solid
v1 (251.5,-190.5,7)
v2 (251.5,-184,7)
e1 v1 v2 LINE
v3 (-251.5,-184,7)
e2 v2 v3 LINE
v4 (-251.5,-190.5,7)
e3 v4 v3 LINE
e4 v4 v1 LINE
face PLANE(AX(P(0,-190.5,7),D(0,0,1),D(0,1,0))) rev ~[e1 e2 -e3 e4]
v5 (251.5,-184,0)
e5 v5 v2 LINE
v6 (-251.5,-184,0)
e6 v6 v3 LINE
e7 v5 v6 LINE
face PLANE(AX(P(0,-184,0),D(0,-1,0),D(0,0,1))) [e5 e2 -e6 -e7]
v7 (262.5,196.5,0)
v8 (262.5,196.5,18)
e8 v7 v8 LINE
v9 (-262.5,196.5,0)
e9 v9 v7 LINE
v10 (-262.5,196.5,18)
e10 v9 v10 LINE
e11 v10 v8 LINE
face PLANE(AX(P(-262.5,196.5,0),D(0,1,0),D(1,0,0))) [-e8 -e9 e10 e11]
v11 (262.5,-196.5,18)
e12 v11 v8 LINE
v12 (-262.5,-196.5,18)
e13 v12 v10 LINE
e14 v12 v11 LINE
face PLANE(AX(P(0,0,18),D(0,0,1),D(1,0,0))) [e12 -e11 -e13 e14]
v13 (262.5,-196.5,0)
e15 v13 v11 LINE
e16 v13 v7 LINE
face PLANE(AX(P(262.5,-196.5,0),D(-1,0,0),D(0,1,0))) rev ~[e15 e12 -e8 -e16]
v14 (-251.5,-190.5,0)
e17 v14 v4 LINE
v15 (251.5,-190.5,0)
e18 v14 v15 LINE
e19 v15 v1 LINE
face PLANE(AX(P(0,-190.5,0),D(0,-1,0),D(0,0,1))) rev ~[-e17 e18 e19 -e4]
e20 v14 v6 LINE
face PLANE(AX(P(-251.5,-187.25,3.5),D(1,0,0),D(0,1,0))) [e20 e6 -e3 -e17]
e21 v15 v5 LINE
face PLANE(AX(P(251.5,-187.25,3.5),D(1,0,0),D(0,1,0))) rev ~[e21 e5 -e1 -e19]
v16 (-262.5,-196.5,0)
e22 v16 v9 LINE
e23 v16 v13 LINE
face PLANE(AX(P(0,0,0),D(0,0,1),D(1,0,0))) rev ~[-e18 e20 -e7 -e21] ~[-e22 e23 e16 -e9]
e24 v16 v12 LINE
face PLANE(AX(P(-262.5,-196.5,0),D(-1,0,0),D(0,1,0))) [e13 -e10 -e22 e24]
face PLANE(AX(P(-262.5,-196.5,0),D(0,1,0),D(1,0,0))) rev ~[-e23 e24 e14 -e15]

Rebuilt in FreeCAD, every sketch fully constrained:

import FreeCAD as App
import Part
import Sketcher
Q = App.Units.Quantity

doc = App.newDocument("Part")
body = doc.addObject("PartDesign::Body", "Body")

# Sketch on XY plane
sketch1 = doc.addObject("Sketcher::SketchObject", "Sketch")
body.addObject(sketch1)
sketch1.AttachmentSupport = (doc.XY_Plane, [""])
sketch1.MapMode = "FlatFace"
sketch1.addGeometry(Part.LineSegment(App.Vector(-262.5, 196.5, 0), App.Vector(-262.5, -196.5, 0)), False)
sketch1.addGeometry(Part.LineSegment(App.Vector(-262.5, -196.5, 0), App.Vector(262.5, -196.5, 0)), False)
sketch1.addGeometry(Part.LineSegment(App.Vector(262.5, -196.5, 0), App.Vector(262.5, 196.5, 0)), False)
sketch1.addGeometry(Part.LineSegment(App.Vector(262.5, 196.5, 0), App.Vector(-262.5, 196.5, 0)), False)
sketch1.addConstraint(Sketcher.Constraint("Coincident", 0, 2, 1, 1))
sketch1.addConstraint(Sketcher.Constraint("Coincident", 1, 2, 2, 1))
sketch1.addConstraint(Sketcher.Constraint("Coincident", 2, 2, 3, 1))
sketch1.addConstraint(Sketcher.Constraint("Coincident", 3, 2, 0, 1))
sketch1.addConstraint(Sketcher.Constraint("Vertical", 0))
sketch1.addConstraint(Sketcher.Constraint("Horizontal", 1))
sketch1.addConstraint(Sketcher.Constraint("Vertical", 2))
sketch1.addConstraint(Sketcher.Constraint("Horizontal", 3))
sketch1.addConstraint(Sketcher.Constraint("Symmetric", 0, 2, 2, 2, -1, 1))
sketch1.addConstraint(Sketcher.Constraint("DistanceX", 1, 1, 1, 2, Q("525 mm")))
sketch1.addConstraint(Sketcher.Constraint("DistanceY", 0, 2, 0, 1, Q("393 mm")))
pad1 = doc.addObject("PartDesign::Pad", "Pad")
body.addObject(pad1)
pad1.Profile = sketch1
pad1.Length = 18

# Sketch on YZ plane
sketch2 = doc.addObject("Sketcher::SketchObject", "Sketch001")
body.addObject(sketch2)
sketch2.AttachmentSupport = (doc.YZ_Plane, [""])
sketch2.MapMode = "FlatFace"
sketch2.addGeometry(Part.LineSegment(App.Vector(-190.5, 7, 0), App.Vector(-190.5, 0, 0)), False)
sketch2.addGeometry(Part.LineSegment(App.Vector(-190.5, 0, 0), App.Vector(-184, 0, 0)), False)
sketch2.addGeometry(Part.LineSegment(App.Vector(-184, 0, 0), App.Vector(-184, 7, 0)), False)
sketch2.addGeometry(Part.LineSegment(App.Vector(-184, 7, 0), App.Vector(-190.5, 7, 0)), False)
sketch2.addConstraint(Sketcher.Constraint("Coincident", 0, 2, 1, 1))
sketch2.addConstraint(Sketcher.Constraint("Coincident", 1, 2, 2, 1))
sketch2.addConstraint(Sketcher.Constraint("Coincident", 2, 2, 3, 1))
sketch2.addConstraint(Sketcher.Constraint("Coincident", 3, 2, 0, 1))
sketch2.addConstraint(Sketcher.Constraint("Vertical", 0))
sketch2.addConstraint(Sketcher.Constraint("Horizontal", 1))
sketch2.addConstraint(Sketcher.Constraint("Vertical", 2))
sketch2.addConstraint(Sketcher.Constraint("Horizontal", 3))
sketch2.addConstraint(Sketcher.Constraint("PointOnObject", 0, 2, -1))
sketch2.addConstraint(Sketcher.Constraint("DistanceY", 0, 2, 0, 1, Q("7 mm")))
sketch2.addConstraint(Sketcher.Constraint("DistanceX", 1, 1, 1, 2, Q("6.5 mm")))
sketch2.addConstraint(Sketcher.Constraint("DistanceX", 1, 2, -1, 1, Q("184 mm")))
pocket1 = doc.addObject("PartDesign::Pocket", "Pocket")
body.addObject(pocket1)
pocket1.Profile = sketch2
pocket1.Type = "TwoLengths"
pocket1.Length = 251.5
pocket1.Length2 = 251.5

doc.recompute()
